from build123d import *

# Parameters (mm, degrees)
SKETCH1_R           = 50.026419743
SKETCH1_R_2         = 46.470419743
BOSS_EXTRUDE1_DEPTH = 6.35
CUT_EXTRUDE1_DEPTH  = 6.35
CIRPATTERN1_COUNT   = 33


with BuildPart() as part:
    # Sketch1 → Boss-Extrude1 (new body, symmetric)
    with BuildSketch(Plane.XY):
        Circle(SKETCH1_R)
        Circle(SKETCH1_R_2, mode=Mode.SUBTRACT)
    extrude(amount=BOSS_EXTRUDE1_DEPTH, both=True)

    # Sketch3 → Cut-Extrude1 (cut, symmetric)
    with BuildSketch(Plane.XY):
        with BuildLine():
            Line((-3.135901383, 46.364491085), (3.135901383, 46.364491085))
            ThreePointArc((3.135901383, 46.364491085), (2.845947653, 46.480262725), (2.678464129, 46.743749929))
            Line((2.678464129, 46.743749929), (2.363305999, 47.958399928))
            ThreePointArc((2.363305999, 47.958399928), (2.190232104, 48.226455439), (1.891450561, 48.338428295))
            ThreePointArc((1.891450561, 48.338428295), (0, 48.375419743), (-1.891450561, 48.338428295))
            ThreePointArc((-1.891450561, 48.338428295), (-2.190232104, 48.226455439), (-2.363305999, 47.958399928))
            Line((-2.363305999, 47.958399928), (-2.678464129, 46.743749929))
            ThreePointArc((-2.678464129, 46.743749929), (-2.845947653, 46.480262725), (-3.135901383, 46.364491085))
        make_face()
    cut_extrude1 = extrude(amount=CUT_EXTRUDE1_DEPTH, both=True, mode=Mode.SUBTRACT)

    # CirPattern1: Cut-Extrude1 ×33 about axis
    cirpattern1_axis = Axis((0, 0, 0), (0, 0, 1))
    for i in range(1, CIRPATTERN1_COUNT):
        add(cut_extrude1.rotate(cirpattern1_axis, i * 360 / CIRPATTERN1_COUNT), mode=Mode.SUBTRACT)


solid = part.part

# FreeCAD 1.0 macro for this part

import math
import FreeCAD as App
import Part
import Sketcher

V = App.Vector
Q = App.Units.Quantity

doc = App.newDocument("Part")
body = doc.addObject("PartDesign::Body", "Body")

# Sketch on XY plane
sketch1 = body.newObject("Sketcher::SketchObject", "Sketch")
sketch1.AttachmentSupport = (doc.getObject("XY_Plane"), [""])
sketch1.MapMode = "FlatFace"
sketch1.addGeometry(Part.Circle(V(0, 0, 0), V(0, 0, 1), 50), False)
sketch1.addGeometry(Part.Circle(V(0, 0, 0), V(0, 0, 1), 46), False)
sketch1.addConstraint(Sketcher.Constraint("Coincident", 0, 3, -1, 1))
sketch1.addConstraint(Sketcher.Constraint("Coincident", 1, 3, -1, 1))
sketch1.addConstraint(Sketcher.Constraint("Diameter", 0, Q("100.052839 mm")))
sketch1.addConstraint(Sketcher.Constraint("Diameter", 1, Q("92.940839 mm")))
pad1 = body.newObject("PartDesign::Pad", "Pad")
pad1.Profile = sketch1
pad1.Length = Q("0.5 in")
pad1.Midplane = True

# Sketch on XY plane
sketch2 = body.newObject("Sketcher::SketchObject", "Sketch001")
sketch2.AttachmentSupport = (doc.getObject("XY_Plane"), [""])
sketch2.MapMode = "FlatFace"
sketch2.addGeometry(Part.LineSegment(V(-3.1, 46.4, 0), V(3.1, 46.4, 0)), False)
sketch2.addGeometry(Part.ArcOfCircle(Part.Circle(V(3.2, 46.9, 0), V(0, 0, 1), 0.5), math.radians(-165), math.radians(-94)), False)
sketch2.addGeometry(Part.LineSegment(V(2.7, 46.7, 0), V(2.4, 48, 0)), False)
sketch2.addGeometry(Part.ArcOfCircle(Part.Circle(V(1.9, 47.8, 0), V(0, 0, 1), 0.5), math.radians(15), math.radians(88)), False)
sketch2.addGeometry(Part.ArcOfCircle(Part.Circle(V(0, 0, 0), V(0, 0, 1), 48.4), math.radians(87.76), math.radians(92.24)), False)
sketch2.addGeometry(Part.ArcOfCircle(Part.Circle(V(-1.9, 47.8, 0), V(0, 0, 1), 0.5), math.radians(92), math.radians(165)), False)
sketch2.addGeometry(Part.LineSegment(V(-2.4, 48, 0), V(-2.7, 46.7, 0)), False)
sketch2.addGeometry(Part.ArcOfCircle(Part.Circle(V(-3.2, 46.9, 0), V(0, 0, 1), 0.5), math.radians(-86), math.radians(-15)), False)
sketch2.addConstraint(Sketcher.Constraint("Coincident", 0, 2, 1, 2))
sketch2.addConstraint(Sketcher.Constraint("Tangent", 1, 1, 2, 1))
sketch2.addConstraint(Sketcher.Constraint("Tangent", 2, 2, 3, 1))
sketch2.addConstraint(Sketcher.Constraint("Tangent", 3, 2, 4, 1))
sketch2.addConstraint(Sketcher.Constraint("Tangent", 4, 2, 5, 1))
sketch2.addConstraint(Sketcher.Constraint("Tangent", 5, 2, 6, 1))
sketch2.addConstraint(Sketcher.Constraint("Tangent", 6, 2, 7, 2))
sketch2.addConstraint(Sketcher.Constraint("Coincident", 7, 1, 0, 1))
sketch2.addConstraint(Sketcher.Constraint("Horizontal", 0))
sketch2.addConstraint(Sketcher.Constraint("Coincident", 4, 3, -1, 1))
sketch2.addConstraint(Sketcher.Constraint("Equal", 1, 3))
sketch2.addConstraint(Sketcher.Constraint("Equal", 3, 5))
sketch2.addConstraint(Sketcher.Constraint("Equal", 5, 7))
sketch2.addConstraint(Sketcher.Constraint("Symmetric", 1, 3, 7, 3, -2))
sketch2.addConstraint(Sketcher.Constraint("Horizontal", 3, 3, 5, 3))
sketch2.addConstraint(Sketcher.Constraint("Radius", 1, Q("0.02 in")))
sketch2.addConstraint(Sketcher.Constraint("Radius", 4, Q("48.375419 mm")))
sketch2.addConstraint(Sketcher.Constraint("DistanceX", -1, 1, 0, 2, Q("3.135901 mm")))
sketch2.addConstraint(Sketcher.Constraint("DistanceY", -1, 1, 2, 2, Q("47.9584 mm")))
sketch2.addConstraint(Sketcher.Constraint("DistanceX", 4, 2, 3, 2, Q("3.782901 mm")))
sketch2.addConstraint(Sketcher.Constraint("Distance", 2, Q("1.25487 mm")))
pocket1 = body.newObject("PartDesign::Pocket", "Pocket")
pocket1.Profile = sketch2
pocket1.Length = Q("0.5 in")
pocket1.Midplane = True
doc.recompute()

polarpattern = body.newObject("PartDesign::PolarPattern", "PolarPattern")
polarpattern.Originals = [pocket1]
polarpattern.Axis = (doc.getObject("Z_Axis"), [""])
polarpattern.Angle = 360
polarpattern.Occurrences = 33
body.Tip = polarpattern

doc.recompute()
